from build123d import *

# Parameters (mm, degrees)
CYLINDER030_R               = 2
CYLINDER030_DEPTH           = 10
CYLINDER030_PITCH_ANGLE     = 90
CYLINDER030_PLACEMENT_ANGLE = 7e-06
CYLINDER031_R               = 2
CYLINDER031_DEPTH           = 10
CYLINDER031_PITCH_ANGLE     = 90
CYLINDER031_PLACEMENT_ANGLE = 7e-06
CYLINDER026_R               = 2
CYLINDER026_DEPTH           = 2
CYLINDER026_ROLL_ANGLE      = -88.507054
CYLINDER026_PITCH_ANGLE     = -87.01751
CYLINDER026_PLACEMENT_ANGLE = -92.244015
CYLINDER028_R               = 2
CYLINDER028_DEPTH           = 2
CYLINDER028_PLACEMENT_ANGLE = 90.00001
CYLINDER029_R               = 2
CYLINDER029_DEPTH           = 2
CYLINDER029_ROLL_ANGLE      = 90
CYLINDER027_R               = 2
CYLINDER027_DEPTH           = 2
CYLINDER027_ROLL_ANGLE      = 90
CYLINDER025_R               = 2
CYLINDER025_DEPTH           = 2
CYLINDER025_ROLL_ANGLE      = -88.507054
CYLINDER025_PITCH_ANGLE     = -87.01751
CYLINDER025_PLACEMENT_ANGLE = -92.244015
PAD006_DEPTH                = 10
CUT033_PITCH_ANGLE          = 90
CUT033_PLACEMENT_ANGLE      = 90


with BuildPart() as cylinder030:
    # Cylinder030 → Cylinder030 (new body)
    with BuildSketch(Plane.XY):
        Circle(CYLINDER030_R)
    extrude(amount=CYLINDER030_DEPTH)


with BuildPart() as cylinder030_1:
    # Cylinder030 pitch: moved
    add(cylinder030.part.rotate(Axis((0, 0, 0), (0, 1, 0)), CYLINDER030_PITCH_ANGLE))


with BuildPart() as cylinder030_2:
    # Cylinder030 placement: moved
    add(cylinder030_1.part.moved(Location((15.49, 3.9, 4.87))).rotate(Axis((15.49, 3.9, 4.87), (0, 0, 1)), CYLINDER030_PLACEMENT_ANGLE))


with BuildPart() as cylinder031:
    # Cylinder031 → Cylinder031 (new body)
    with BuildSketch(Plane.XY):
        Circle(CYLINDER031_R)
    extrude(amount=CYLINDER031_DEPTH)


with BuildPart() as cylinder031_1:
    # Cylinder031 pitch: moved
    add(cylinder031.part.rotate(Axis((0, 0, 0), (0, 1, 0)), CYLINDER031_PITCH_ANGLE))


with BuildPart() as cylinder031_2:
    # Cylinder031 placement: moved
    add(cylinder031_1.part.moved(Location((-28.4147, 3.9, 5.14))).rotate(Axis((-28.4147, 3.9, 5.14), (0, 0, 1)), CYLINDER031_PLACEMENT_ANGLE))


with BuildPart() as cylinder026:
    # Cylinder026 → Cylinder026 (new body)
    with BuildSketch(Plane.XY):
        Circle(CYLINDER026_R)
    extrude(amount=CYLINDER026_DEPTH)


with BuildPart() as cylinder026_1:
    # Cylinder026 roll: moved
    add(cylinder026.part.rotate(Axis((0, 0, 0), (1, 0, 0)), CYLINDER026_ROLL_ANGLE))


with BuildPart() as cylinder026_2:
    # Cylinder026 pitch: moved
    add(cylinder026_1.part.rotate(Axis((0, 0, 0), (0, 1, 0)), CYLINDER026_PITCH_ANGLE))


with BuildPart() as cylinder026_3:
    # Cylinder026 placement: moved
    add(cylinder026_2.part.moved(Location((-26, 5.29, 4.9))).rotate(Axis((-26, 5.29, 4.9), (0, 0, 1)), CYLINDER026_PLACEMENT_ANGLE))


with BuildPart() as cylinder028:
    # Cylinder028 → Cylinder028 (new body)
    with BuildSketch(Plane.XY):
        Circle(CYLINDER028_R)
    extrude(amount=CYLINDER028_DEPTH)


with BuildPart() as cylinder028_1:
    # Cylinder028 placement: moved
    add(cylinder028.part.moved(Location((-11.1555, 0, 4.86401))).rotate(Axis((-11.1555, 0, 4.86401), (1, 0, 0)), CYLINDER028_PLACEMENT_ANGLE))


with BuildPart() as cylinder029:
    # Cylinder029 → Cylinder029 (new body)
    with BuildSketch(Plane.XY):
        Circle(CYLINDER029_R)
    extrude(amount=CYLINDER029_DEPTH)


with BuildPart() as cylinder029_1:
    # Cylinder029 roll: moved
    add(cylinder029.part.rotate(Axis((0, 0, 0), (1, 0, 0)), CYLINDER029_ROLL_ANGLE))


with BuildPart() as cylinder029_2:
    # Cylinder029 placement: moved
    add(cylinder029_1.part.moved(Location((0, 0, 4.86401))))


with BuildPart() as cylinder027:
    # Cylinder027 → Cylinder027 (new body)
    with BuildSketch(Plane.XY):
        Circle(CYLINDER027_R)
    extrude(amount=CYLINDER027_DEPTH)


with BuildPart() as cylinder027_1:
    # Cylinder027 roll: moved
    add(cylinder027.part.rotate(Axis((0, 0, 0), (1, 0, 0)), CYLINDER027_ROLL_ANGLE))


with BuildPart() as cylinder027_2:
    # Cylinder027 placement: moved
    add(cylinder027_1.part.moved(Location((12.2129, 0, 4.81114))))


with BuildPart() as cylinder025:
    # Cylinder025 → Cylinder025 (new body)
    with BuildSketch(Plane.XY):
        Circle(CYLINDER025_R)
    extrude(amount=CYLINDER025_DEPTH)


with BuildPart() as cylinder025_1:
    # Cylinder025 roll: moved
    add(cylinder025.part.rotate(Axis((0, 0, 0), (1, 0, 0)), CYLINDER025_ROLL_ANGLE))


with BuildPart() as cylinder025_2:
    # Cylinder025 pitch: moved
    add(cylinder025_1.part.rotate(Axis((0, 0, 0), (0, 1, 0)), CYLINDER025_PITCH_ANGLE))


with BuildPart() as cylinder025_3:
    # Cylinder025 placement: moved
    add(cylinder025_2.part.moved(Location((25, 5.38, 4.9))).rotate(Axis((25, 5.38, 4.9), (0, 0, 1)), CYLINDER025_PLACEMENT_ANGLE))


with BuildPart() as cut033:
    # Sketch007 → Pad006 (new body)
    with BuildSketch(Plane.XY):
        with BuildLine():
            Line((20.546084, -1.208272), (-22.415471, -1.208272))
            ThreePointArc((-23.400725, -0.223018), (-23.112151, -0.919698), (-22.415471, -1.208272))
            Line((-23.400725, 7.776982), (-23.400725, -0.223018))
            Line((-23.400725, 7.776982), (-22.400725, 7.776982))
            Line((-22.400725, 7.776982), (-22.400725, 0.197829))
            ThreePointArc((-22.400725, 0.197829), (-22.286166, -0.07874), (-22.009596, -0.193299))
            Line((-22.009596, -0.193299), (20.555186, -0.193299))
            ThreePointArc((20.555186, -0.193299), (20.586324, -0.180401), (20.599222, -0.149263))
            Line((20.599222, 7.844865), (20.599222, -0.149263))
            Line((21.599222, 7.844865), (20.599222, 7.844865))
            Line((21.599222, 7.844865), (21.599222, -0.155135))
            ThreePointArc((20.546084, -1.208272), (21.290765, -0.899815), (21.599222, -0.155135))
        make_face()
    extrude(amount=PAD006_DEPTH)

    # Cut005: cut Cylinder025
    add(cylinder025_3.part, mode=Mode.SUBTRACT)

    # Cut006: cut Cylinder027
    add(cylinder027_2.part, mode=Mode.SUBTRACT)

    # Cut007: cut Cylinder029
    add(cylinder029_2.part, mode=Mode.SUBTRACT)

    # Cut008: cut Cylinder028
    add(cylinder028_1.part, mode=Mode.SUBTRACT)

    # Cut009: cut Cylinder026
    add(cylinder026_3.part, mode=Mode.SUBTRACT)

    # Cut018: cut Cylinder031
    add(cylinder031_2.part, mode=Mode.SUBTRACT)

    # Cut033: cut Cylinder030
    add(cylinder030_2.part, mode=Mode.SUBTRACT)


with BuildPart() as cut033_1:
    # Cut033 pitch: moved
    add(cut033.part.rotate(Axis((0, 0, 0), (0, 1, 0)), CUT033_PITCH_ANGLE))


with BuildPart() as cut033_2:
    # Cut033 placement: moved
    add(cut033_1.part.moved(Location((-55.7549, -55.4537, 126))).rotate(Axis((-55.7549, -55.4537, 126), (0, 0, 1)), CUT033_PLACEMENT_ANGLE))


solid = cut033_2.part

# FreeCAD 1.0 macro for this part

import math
import FreeCAD as App
import Part
import Sketcher

doc = App.newDocument("Part")
body = doc.addObject("PartDesign::Body", "Body")

# Sketch on XY plane
sketch1 = body.newObject("Sketcher::SketchObject", "Sketch")
sketch1.AttachmentSupport = (doc.getObject("XY_Plane"), [""])
sketch1.MapMode = "FlatFace"
sketch1.addGeometry(Part.Circle(App.Vector(0, 0, 0), App.Vector(0, 0, 1), 2), False)
sketch1.addConstraint([
    Sketcher.Constraint("Coincident", 0, 3, -1, 1),
    Sketcher.Constraint("Diameter", 0, 4.0),
])
pad1 = body.newObject("PartDesign::Pad", "Pad")
pad1.Profile = sketch1
pad1.Length = 10
body2 = doc.addObject("PartDesign::Body", "Body001")
doc.recompute()

body.Placement = App.Placement(App.Vector(0, 0, 0), App.Rotation(App.Vector(0, 1, 0), 90))
boolean = body2.newObject("PartDesign::Boolean", "Boolean")
boolean.Type = "Fuse"
boolean.addObjects([body])
body3 = doc.addObject("PartDesign::Body", "Body002")
doc.recompute()

body2.Placement = App.Placement(App.Vector(15.49, 3.9, 4.87), App.Rotation(App.Vector(0, 0, 1), 0.000007))
boolean2 = body3.newObject("PartDesign::Boolean", "Boolean001")
boolean2.Type = "Fuse"
boolean2.addObjects([body2])
body4 = doc.addObject("PartDesign::Body", "Body003")

# Sketch on XY plane
sketch2 = body4.newObject("Sketcher::SketchObject", "Sketch001")
sketch2.AttachmentSupport = (doc.getObject("XY_Plane003"), [""])
sketch2.MapMode = "FlatFace"
sketch2.addGeometry(Part.Circle(App.Vector(0, 0, 0), App.Vector(0, 0, 1), 2), False)
sketch2.addConstraint([
    Sketcher.Constraint("Coincident", 0, 3, -1, 1),
    Sketcher.Constraint("Diameter", 0, 4.0),
])
pad2 = body4.newObject("PartDesign::Pad", "Pad001")
pad2.Profile = sketch2
pad2.Length = 10
body5 = doc.addObject("PartDesign::Body", "Body004")
doc.recompute()

body4.Placement = App.Placement(App.Vector(0, 0, 0), App.Rotation(App.Vector(0, 1, 0), 90))
boolean3 = body5.newObject("PartDesign::Boolean", "Boolean002")
boolean3.Type = "Fuse"
boolean3.addObjects([body4])
body6 = doc.addObject("PartDesign::Body", "Body005")
doc.recompute()

body5.Placement = App.Placement(App.Vector(-28.4147, 3.9, 5.14), App.Rotation(App.Vector(0, 0, 1), 0.000007))
boolean4 = body6.newObject("PartDesign::Boolean", "Boolean003")
boolean4.Type = "Fuse"
boolean4.addObjects([body5])
body7 = doc.addObject("PartDesign::Body", "Body006")

# Sketch on XY plane
sketch3 = body7.newObject("Sketcher::SketchObject", "Sketch002")
sketch3.AttachmentSupport = (doc.getObject("XY_Plane006"), [""])
sketch3.MapMode = "FlatFace"
sketch3.addGeometry(Part.Circle(App.Vector(0, 0, 0), App.Vector(0, 0, 1), 2), False)
sketch3.addConstraint([
    Sketcher.Constraint("Coincident", 0, 3, -1, 1),
    Sketcher.Constraint("Diameter", 0, 4.0),
])
pad3 = body7.newObject("PartDesign::Pad", "Pad002")
pad3.Profile = sketch3
pad3.Length = 2
body8 = doc.addObject("PartDesign::Body", "Body007")
doc.recompute()

body7.Placement = App.Placement(App.Vector(0, 0, 0), App.Rotation(App.Vector(1, 0, 0), 271.492946))
boolean5 = body8.newObject("PartDesign::Boolean", "Boolean004")
boolean5.Type = "Fuse"
boolean5.addObjects([body7])
body9 = doc.addObject("PartDesign::Body", "Body008")
doc.recompute()

body8.Placement = App.Placement(App.Vector(0, 0, 0), App.Rotation(App.Vector(0, 1, 0), 272.98249))
boolean6 = body9.newObject("PartDesign::Boolean", "Boolean005")
boolean6.Type = "Fuse"
boolean6.addObjects([body8])
body10 = doc.addObject("PartDesign::Body", "Body009")
doc.recompute()

body9.Placement = App.Placement(App.Vector(-26, 5.29, 4.9), App.Rotation(App.Vector(0, 0, 1), 267.755985))
boolean7 = body10.newObject("PartDesign::Boolean", "Boolean006")
boolean7.Type = "Fuse"
boolean7.addObjects([body9])
body11 = doc.addObject("PartDesign::Body", "Body010")

# Sketch on XY plane
sketch4 = body11.newObject("Sketcher::SketchObject", "Sketch003")
sketch4.AttachmentSupport = (doc.getObject("XY_Plane010"), [""])
sketch4.MapMode = "FlatFace"
sketch4.addGeometry(Part.Circle(App.Vector(0, 0, 0), App.Vector(0, 0, 1), 2), False)
sketch4.addConstraint([
    Sketcher.Constraint("Coincident", 0, 3, -1, 1),
    Sketcher.Constraint("Diameter", 0, 4.0),
])
pad4 = body11.newObject("PartDesign::Pad", "Pad003")
pad4.Profile = sketch4
pad4.Length = 2
body12 = doc.addObject("PartDesign::Body", "Body011")
doc.recompute()

body11.Placement = App.Placement(App.Vector(-11.1555, 0, 4.86401), App.Rotation(App.Vector(1, 0, 0), 90.00001))
boolean8 = body12.newObject("PartDesign::Boolean", "Boolean007")
boolean8.Type = "Fuse"
boolean8.addObjects([body11])
body13 = doc.addObject("PartDesign::Body", "Body012")

# Sketch on XY plane
sketch5 = body13.newObject("Sketcher::SketchObject", "Sketch004")
sketch5.AttachmentSupport = (doc.getObject("XY_Plane012"), [""])
sketch5.MapMode = "FlatFace"
sketch5.addGeometry(Part.Circle(App.Vector(0, 0, 0), App.Vector(0, 0, 1), 2), False)
sketch5.addConstraint([
    Sketcher.Constraint("Coincident", 0, 3, -1, 1),
    Sketcher.Constraint("Diameter", 0, 4.0),
])
pad5 = body13.newObject("PartDesign::Pad", "Pad004")
pad5.Profile = sketch5
pad5.Length = 2
body14 = doc.addObject("PartDesign::Body", "Body013")
doc.recompute()

body13.Placement = App.Placement(App.Vector(0, 0, 0), App.Rotation(App.Vector(1, 0, 0), 90))
boolean9 = body14.newObject("PartDesign::Boolean", "Boolean008")
boolean9.Type = "Fuse"
boolean9.addObjects([body13])
body15 = doc.addObject("PartDesign::Body", "Body014")
doc.recompute()

body14.Placement = App.Placement(App.Vector(0, 0, 4.86401), App.Rotation(App.Vector(0, 0, 1), 0))
boolean10 = body15.newObject("PartDesign::Boolean", "Boolean009")
boolean10.Type = "Fuse"
boolean10.addObjects([body14])
body16 = doc.addObject("PartDesign::Body", "Body015")

# Sketch on XY plane
sketch6 = body16.newObject("Sketcher::SketchObject", "Sketch005")
sketch6.AttachmentSupport = (doc.getObject("XY_Plane015"), [""])
sketch6.MapMode = "FlatFace"
sketch6.addGeometry(Part.Circle(App.Vector(0, 0, 0), App.Vector(0, 0, 1), 2), False)
sketch6.addConstraint([
    Sketcher.Constraint("Coincident", 0, 3, -1, 1),
    Sketcher.Constraint("Diameter", 0, 4.0),
])
pad6 = body16.newObject("PartDesign::Pad", "Pad005")
pad6.Profile = sketch6
pad6.Length = 2
body17 = doc.addObject("PartDesign::Body", "Body016")
doc.recompute()

body16.Placement = App.Placement(App.Vector(0, 0, 0), App.Rotation(App.Vector(1, 0, 0), 90))
boolean11 = body17.newObject("PartDesign::Boolean", "Boolean010")
boolean11.Type = "Fuse"
boolean11.addObjects([body16])
body18 = doc.addObject("PartDesign::Body", "Body017")
doc.recompute()

body17.Placement = App.Placement(App.Vector(12.2129, 0, 4.81114), App.Rotation(App.Vector(0, 0, 1), 0))
boolean12 = body18.newObject("PartDesign::Boolean", "Boolean011")
boolean12.Type = "Fuse"
boolean12.addObjects([body17])
body19 = doc.addObject("PartDesign::Body", "Body018")

# Sketch on XY plane
sketch7 = body19.newObject("Sketcher::SketchObject", "Sketch006")
sketch7.AttachmentSupport = (doc.getObject("XY_Plane018"), [""])
sketch7.MapMode = "FlatFace"
sketch7.addGeometry(Part.Circle(App.Vector(0, 0, 0), App.Vector(0, 0, 1), 2), False)
sketch7.addConstraint([
    Sketcher.Constraint("Coincident", 0, 3, -1, 1),
    Sketcher.Constraint("Diameter", 0, 4.0),
])
pad7 = body19.newObject("PartDesign::Pad", "Pad006")
pad7.Profile = sketch7
pad7.Length = 2
body20 = doc.addObject("PartDesign::Body", "Body019")
doc.recompute()

body19.Placement = App.Placement(App.Vector(0, 0, 0), App.Rotation(App.Vector(1, 0, 0), 271.492946))
boolean13 = body20.newObject("PartDesign::Boolean", "Boolean012")
boolean13.Type = "Fuse"
boolean13.addObjects([body19])
body21 = doc.addObject("PartDesign::Body", "Body020")
doc.recompute()

body20.Placement = App.Placement(App.Vector(0, 0, 0), App.Rotation(App.Vector(0, 1, 0), 272.98249))
boolean14 = body21.newObject("PartDesign::Boolean", "Boolean013")
boolean14.Type = "Fuse"
boolean14.addObjects([body20])
body22 = doc.addObject("PartDesign::Body", "Body021")
doc.recompute()

body21.Placement = App.Placement(App.Vector(25, 5.38, 4.9), App.Rotation(App.Vector(0, 0, 1), 267.755985))
boolean15 = body22.newObject("PartDesign::Boolean", "Boolean014")
boolean15.Type = "Fuse"
boolean15.addObjects([body21])
body23 = doc.addObject("PartDesign::Body", "Body022")

# Sketch on XY plane
sketch8 = body23.newObject("Sketcher::SketchObject", "Sketch007")
sketch8.AttachmentSupport = (doc.getObject("XY_Plane022"), [""])
sketch8.MapMode = "FlatFace"
sketch8.addGeometry([
    Part.LineSegment(App.Vector(-22.415, -1.208, 0), App.Vector(20.546, -1.208, 0)),  # 0
    Part.ArcOfCircle(Part.Circle(App.Vector(20.546, -0.155, 0), App.Vector(0, 0, 1), 1.053), math.radians(-90), math.radians(0)),  # 1
    Part.LineSegment(App.Vector(21.599, -0.155, 0), App.Vector(21.599, 7.845, 0)),  # 2
    Part.LineSegment(App.Vector(21.599, 7.845, 0), App.Vector(20.599, 7.845, 0)),  # 3
    Part.LineSegment(App.Vector(20.599, 7.845, 0), App.Vector(20.599, -0.149, 0)),  # 4
    Part.ArcOfCircle(Part.Circle(App.Vector(20.555, -0.149, 0), App.Vector(0, 0, 1), 0.044), math.radians(-90), math.radians(0)),  # 5
    Part.LineSegment(App.Vector(20.555, -0.193, 0), App.Vector(-22.01, -0.193, 0)),  # 6
    Part.ArcOfCircle(Part.Circle(App.Vector(-22.01, 0.198, 0), App.Vector(0, 0, 1), 0.391), math.radians(-180), math.radians(-90)),  # 7
    Part.LineSegment(App.Vector(-22.401, 0.198, 0), App.Vector(-22.401, 7.777, 0)),  # 8
    Part.LineSegment(App.Vector(-22.401, 7.777, 0), App.Vector(-23.401, 7.777, 0)),  # 9
    Part.LineSegment(App.Vector(-23.401, 7.777, 0), App.Vector(-23.401, -0.223, 0)),  # 10
    Part.ArcOfCircle(Part.Circle(App.Vector(-22.415, -0.223, 0), App.Vector(0, 0, 1), 0.985), math.radians(180), math.radians(270)),  # 11
], False)
sketch8.addConstraint([
    Sketcher.Constraint("Tangent", 0, 2, 1, 1),
    Sketcher.Constraint("Tangent", 1, 2, 2, 1),
    Sketcher.Constraint("Coincident", 2, 2, 3, 1),
    Sketcher.Constraint("Coincident", 3, 2, 4, 1),
    Sketcher.Constraint("Coincident", 4, 2, 5, 2),
    Sketcher.Constraint("Coincident", 5, 1, 6, 1),
    Sketcher.Constraint("Tangent", 6, 2, 7, 2),
    Sketcher.Constraint("Coincident", 7, 1, 8, 1),
    Sketcher.Constraint("Coincident", 8, 2, 9, 1),
    Sketcher.Constraint("Coincident", 9, 2, 10, 1),
    Sketcher.Constraint("Tangent", 10, 2, 11, 1),
    Sketcher.Constraint("Tangent", 11, 2, 0, 1),
    Sketcher.Constraint("Horizontal", 0),
    Sketcher.Constraint("Vertical", 2),
    Sketcher.Constraint("Horizontal", 3),
    Sketcher.Constraint("Vertical", 4),
    Sketcher.Constraint("Horizontal", 6),
    Sketcher.Constraint("Vertical", 8),
    Sketcher.Constraint("Horizontal", 9),
    Sketcher.Constraint("Vertical", 10),
    Sketcher.Constraint("Horizontal", 5, 3, 4, 2),
    Sketcher.Constraint("Equal", 3, 9),
    Sketcher.Constraint("Equal", 2, 10),
    Sketcher.Constraint("DistanceX", 3, 2, 3, 1, 1.0),
    Sketcher.Constraint("DistanceY", 2, 1, 2, 2, 8.0),
    Sketcher.Constraint("Radius", 1, 1.053138),
    Sketcher.Constraint("Radius", 7, 0.391129),
    Sketcher.Constraint("Radius", 5, 0.044037),
    Sketcher.Constraint("Radius", 11, 0.985253),
    Sketcher.Constraint("DistanceX", 6, 2, 6, 1, 42.564782),
    Sketcher.Constraint("DistanceY", 4, 2, 4, 1, 7.994128),
    Sketcher.Constraint("DistanceY", 5, 1, -1, 1, 0.193299),
    Sketcher.Constraint("DistanceX", 0, 2, 5, 1, 0.009102),
    Sketcher.Constraint("DistanceY", 11, 2, 7, 1, 1.406101),
    Sketcher.Constraint("DistanceX", 11, 3, -1, 1, 22.415472),
])
pad8 = body23.newObject("PartDesign::Pad", "Pad007")
pad8.Profile = sketch8
pad8.Length = 10
doc.recompute()

boolean16 = body23.newObject("PartDesign::Boolean", "Boolean015")
boolean16.Type = "Cut"
boolean16.addObjects([body22])
doc.recompute()

boolean17 = body23.newObject("PartDesign::Boolean", "Boolean016")
boolean17.Type = "Cut"
boolean17.addObjects([body18])
doc.recompute()

boolean18 = body23.newObject("PartDesign::Boolean", "Boolean017")
boolean18.Type = "Cut"
boolean18.addObjects([body15])
doc.recompute()

boolean19 = body23.newObject("PartDesign::Boolean", "Boolean018")
boolean19.Type = "Cut"
boolean19.addObjects([body12])
doc.recompute()

boolean20 = body23.newObject("PartDesign::Boolean", "Boolean019")
boolean20.Type = "Cut"
boolean20.addObjects([body10])
doc.recompute()

boolean21 = body23.newObject("PartDesign::Boolean", "Boolean020")
boolean21.Type = "Cut"
boolean21.addObjects([body6])
doc.recompute()

boolean22 = body23.newObject("PartDesign::Boolean", "Boolean021")
boolean22.Type = "Cut"
boolean22.addObjects([body3])
body24 = doc.addObject("PartDesign::Body", "Body023")
doc.recompute()

body23.Placement = App.Placement(App.Vector(0, 0, 0), App.Rotation(App.Vector(0, 1, 0), 90))
boolean23 = body24.newObject("PartDesign::Boolean", "Boolean022")
boolean23.Type = "Fuse"
boolean23.addObjects([body23])
body25 = doc.addObject("PartDesign::Body", "Body024")
doc.recompute()

body24.Placement = App.Placement(App.Vector(-55.7549, -55.4537, 126), App.Rotation(App.Vector(0, 0, 1), 90))
boolean24 = body25.newObject("PartDesign::Boolean", "Boolean023")
boolean24.Type = "Fuse"
boolean24.addObjects([body24])

doc.recompute()
